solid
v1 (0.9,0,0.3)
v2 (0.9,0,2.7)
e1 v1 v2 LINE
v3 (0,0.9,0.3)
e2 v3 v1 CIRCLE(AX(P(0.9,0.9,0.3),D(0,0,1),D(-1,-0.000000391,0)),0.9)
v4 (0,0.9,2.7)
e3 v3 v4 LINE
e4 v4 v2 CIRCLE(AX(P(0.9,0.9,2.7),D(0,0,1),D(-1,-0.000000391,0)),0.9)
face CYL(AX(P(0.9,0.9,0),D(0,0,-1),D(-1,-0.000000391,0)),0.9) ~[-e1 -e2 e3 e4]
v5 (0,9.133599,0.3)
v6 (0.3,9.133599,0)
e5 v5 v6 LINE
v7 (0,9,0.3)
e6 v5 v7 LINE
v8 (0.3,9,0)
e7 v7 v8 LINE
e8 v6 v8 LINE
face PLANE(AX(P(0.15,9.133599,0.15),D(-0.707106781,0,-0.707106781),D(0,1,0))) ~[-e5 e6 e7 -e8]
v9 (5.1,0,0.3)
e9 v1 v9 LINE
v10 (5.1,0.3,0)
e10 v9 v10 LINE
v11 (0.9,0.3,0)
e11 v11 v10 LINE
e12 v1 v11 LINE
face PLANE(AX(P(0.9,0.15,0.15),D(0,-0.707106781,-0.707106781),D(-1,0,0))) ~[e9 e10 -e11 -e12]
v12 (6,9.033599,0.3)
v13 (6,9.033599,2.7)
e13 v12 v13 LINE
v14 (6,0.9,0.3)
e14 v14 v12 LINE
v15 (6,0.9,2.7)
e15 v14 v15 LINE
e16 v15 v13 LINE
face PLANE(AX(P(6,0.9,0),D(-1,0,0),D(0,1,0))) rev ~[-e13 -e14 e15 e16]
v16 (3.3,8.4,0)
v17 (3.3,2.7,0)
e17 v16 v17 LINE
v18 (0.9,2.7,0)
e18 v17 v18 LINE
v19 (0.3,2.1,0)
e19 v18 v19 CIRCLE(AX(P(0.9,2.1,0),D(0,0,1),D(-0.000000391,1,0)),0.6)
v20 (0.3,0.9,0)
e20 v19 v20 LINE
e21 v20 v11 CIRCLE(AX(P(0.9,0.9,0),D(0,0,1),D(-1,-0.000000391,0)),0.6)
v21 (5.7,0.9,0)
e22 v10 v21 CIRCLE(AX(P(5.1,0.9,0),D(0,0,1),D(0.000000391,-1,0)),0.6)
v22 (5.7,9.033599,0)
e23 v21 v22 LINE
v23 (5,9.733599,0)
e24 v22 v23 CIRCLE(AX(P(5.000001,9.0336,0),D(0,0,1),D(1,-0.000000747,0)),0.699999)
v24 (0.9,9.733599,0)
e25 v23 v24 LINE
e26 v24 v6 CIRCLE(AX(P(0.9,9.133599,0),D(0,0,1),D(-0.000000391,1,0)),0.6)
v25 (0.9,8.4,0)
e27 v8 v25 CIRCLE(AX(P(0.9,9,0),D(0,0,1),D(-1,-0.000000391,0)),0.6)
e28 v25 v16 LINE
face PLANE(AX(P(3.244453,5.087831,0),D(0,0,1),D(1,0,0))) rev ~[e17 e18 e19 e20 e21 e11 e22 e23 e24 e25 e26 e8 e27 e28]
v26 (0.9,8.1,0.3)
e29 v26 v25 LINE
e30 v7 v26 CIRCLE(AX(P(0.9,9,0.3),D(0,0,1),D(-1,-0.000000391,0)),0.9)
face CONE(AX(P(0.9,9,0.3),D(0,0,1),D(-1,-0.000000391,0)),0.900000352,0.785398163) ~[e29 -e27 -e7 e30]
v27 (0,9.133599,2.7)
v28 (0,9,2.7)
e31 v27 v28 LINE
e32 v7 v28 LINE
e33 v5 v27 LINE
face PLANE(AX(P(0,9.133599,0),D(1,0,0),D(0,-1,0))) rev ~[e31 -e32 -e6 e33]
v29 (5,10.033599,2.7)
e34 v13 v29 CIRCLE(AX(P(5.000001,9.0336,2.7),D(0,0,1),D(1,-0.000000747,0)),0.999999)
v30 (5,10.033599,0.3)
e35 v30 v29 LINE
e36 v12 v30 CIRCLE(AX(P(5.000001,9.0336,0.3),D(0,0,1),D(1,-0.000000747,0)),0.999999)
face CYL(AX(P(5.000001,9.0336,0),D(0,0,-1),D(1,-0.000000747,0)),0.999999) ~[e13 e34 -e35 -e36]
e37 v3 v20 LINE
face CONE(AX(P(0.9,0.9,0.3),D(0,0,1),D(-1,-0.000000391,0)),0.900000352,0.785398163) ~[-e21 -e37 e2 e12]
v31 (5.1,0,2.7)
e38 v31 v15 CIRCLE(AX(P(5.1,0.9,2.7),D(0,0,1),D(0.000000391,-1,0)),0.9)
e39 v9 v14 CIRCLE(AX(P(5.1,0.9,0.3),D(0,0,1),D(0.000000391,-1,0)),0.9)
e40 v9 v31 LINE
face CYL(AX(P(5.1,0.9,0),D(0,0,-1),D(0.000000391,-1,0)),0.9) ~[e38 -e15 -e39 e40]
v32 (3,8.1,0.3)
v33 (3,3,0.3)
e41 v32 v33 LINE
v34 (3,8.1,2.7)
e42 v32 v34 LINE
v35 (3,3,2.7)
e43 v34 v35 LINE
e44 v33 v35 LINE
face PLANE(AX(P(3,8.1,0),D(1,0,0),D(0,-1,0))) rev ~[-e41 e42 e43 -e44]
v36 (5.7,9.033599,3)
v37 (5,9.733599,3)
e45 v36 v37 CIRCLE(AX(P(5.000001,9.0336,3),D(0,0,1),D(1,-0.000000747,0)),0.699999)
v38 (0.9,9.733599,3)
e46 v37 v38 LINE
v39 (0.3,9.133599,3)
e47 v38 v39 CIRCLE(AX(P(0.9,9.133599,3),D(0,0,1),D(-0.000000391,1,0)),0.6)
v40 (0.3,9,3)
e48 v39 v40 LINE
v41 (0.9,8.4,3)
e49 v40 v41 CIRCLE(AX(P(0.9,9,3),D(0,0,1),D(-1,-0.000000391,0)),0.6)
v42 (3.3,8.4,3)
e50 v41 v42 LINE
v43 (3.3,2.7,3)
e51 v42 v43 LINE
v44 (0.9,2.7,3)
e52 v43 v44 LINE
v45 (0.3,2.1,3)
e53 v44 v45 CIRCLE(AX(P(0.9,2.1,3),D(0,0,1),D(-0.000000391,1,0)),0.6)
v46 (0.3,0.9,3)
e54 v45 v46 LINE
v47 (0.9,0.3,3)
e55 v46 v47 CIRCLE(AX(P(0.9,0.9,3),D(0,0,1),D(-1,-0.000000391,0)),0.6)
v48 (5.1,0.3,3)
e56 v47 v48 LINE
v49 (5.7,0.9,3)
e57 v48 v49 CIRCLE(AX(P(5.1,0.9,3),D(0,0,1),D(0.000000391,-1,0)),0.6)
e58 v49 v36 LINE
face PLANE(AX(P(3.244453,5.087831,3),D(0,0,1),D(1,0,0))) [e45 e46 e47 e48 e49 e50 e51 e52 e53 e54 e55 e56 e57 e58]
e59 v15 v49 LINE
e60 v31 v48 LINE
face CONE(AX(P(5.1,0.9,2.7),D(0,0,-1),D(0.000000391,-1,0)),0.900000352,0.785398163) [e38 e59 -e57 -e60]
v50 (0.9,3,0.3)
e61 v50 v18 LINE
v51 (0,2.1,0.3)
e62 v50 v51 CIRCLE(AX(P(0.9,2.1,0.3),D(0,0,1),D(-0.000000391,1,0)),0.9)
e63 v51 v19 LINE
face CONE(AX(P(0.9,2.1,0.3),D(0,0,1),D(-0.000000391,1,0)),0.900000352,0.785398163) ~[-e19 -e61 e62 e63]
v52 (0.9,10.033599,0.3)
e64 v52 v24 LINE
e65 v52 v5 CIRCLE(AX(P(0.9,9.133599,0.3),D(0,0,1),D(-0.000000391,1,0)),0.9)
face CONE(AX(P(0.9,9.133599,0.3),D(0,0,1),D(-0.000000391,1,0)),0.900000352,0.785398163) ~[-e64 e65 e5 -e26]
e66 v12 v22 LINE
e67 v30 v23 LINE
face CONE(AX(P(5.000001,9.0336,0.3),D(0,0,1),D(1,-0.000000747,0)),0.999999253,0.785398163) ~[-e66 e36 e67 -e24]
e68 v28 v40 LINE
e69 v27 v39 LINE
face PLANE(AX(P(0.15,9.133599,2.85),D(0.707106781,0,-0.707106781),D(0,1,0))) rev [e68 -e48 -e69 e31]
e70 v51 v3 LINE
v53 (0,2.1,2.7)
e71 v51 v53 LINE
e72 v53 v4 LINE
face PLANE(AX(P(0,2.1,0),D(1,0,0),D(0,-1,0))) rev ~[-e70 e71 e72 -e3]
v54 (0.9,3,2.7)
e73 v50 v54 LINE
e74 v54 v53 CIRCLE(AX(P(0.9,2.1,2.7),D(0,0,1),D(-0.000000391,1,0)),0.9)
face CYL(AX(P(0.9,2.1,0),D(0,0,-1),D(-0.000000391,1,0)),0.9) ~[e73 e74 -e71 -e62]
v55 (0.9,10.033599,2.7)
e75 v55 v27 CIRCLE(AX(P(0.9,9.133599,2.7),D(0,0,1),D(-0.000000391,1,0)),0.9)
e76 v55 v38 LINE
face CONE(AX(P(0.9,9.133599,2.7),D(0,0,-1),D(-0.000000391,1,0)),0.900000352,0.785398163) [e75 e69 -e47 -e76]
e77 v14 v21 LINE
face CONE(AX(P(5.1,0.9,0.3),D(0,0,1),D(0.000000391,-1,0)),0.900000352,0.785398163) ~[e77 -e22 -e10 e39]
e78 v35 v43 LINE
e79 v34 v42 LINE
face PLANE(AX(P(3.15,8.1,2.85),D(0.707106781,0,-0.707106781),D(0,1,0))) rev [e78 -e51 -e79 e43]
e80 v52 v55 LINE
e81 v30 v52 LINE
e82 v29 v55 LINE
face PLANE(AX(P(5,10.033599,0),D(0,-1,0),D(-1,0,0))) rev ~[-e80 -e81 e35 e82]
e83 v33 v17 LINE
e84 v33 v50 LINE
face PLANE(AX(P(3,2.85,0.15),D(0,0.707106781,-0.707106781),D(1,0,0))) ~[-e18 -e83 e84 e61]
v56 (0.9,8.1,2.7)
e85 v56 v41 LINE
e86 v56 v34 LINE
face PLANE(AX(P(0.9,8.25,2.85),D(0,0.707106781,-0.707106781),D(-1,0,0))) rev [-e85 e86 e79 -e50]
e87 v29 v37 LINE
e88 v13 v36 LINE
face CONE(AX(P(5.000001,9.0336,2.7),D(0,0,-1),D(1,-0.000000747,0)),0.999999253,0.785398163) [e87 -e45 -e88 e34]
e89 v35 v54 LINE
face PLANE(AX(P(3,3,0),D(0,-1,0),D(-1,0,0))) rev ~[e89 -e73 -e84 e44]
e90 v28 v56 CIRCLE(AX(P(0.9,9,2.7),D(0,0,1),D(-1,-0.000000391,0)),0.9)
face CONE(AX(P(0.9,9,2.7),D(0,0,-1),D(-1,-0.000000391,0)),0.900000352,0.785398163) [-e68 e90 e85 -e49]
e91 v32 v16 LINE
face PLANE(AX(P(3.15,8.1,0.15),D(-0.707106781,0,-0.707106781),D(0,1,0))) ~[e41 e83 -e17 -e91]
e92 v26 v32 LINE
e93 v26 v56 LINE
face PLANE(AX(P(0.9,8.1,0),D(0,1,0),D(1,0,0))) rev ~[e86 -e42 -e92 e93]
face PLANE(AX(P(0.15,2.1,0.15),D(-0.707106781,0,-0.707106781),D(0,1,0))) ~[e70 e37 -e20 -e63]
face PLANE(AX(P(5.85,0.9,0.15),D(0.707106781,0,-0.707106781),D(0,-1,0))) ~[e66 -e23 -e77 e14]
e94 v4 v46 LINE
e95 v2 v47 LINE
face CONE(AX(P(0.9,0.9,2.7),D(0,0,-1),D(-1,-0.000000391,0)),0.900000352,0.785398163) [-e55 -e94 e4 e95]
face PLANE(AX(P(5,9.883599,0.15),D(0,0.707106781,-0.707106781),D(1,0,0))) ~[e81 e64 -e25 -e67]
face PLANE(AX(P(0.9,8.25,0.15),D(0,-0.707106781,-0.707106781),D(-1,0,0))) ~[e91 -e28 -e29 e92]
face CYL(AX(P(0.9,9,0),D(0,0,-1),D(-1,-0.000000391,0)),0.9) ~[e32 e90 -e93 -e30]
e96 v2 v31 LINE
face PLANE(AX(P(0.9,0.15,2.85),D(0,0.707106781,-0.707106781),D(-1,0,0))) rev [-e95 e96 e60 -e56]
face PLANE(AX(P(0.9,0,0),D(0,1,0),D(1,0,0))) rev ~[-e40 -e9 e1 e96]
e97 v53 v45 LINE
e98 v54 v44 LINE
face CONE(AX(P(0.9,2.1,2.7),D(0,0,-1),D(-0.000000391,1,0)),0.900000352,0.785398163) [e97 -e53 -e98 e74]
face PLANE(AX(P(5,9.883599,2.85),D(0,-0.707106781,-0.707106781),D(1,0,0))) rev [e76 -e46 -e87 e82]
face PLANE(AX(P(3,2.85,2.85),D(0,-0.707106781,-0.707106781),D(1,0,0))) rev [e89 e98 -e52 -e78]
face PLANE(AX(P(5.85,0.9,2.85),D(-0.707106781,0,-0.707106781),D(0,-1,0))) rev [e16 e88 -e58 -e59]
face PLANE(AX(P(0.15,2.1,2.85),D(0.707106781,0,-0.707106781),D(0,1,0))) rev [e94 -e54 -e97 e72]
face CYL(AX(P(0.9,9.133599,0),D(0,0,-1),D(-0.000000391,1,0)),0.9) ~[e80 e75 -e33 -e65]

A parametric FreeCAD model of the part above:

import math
import FreeCAD as App
import Part
import Sketcher


def edges_at(feature, points):
    """Names of the edges that pass closest to the given points."""
    edges = feature.Shape.Edges
    near = lambda p: min(range(len(edges)), key=lambda i: edges[i].distToShape(Part.Vertex(*p))[0])
    return sorted({f"Edge{near(p) + 1}" for p in points})

doc = App.newDocument("Part")
body = doc.addObject("PartDesign::Body", "Body")

# Sketch on XY plane
sketch1 = body.newObject("Sketcher::SketchObject", "Sketch")
sketch1.AttachmentSupport = (doc.getObject("XY_Plane"), [""])
sketch1.MapMode = "FlatFace"
sketch1.addGeometry([
    Part.ArcOfCircle(Part.Circle(App.Vector(0.9, 9, 0), App.Vector(0, 0, 1), 0.9), math.radians(-180), math.radians(-90)),  # 0
    Part.LineSegment(App.Vector(0.9, 8.1, 0), App.Vector(3, 8.1, 0)),  # 1
    Part.LineSegment(App.Vector(3, 8.1, 0), App.Vector(3, 3, 0)),  # 2
    Part.LineSegment(App.Vector(3, 3, 0), App.Vector(0.9, 3, 0)),  # 3
    Part.ArcOfCircle(Part.Circle(App.Vector(0.9, 2.1, 0), App.Vector(0, 0, 1), 0.9), math.radians(90), math.radians(180)),  # 4
    Part.LineSegment(App.Vector(0, 2.1, 0), App.Vector(0, 0.9, 0)),  # 5
    Part.ArcOfCircle(Part.Circle(App.Vector(0.9, 0.9, 0), App.Vector(0, 0, 1), 0.9), math.radians(-180), math.radians(-90)),  # 6
    Part.LineSegment(App.Vector(0.9, 0, 0), App.Vector(5.1, 0, 0)),  # 7
    Part.ArcOfCircle(Part.Circle(App.Vector(5.1, 0.9, 0), App.Vector(0, 0, 1), 0.9), math.radians(-90), math.radians(0)),  # 8
    Part.LineSegment(App.Vector(6, 0.9, 0), App.Vector(6, 9.03, 0)),  # 9
    Part.ArcOfCircle(Part.Circle(App.Vector(5, 9.03, 0), App.Vector(0, 0, 1), 1), math.radians(0), math.radians(90)),  # 10
    Part.LineSegment(App.Vector(5, 10.03, 0), App.Vector(0.9, 10.03, 0)),  # 11
    Part.ArcOfCircle(Part.Circle(App.Vector(0.9, 9.13, 0), App.Vector(0, 0, 1), 0.9), math.radians(90), math.radians(180)),  # 12
    Part.LineSegment(App.Vector(0, 9.13, 0), App.Vector(0, 9, 0)),  # 13
], False)
sketch1.addConstraint([
    Sketcher.Constraint("Tangent", 0, 2, 1, 1),
    Sketcher.Constraint("Coincident", 1, 2, 2, 1),
    Sketcher.Constraint("Coincident", 2, 2, 3, 1),
    Sketcher.Constraint("Tangent", 3, 2, 4, 1),
    Sketcher.Constraint("Tangent", 4, 2, 5, 1),
    Sketcher.Constraint("Tangent", 5, 2, 6, 1),
    Sketcher.Constraint("Tangent", 6, 2, 7, 1),
    Sketcher.Constraint("Tangent", 7, 2, 8, 1),
    Sketcher.Constraint("Tangent", 8, 2, 9, 1),
    Sketcher.Constraint("Tangent", 9, 2, 10, 1),
    Sketcher.Constraint("Tangent", 10, 2, 11, 1),
    Sketcher.Constraint("Tangent", 11, 2, 12, 1),
    Sketcher.Constraint("Tangent", 12, 2, 13, 1),
    Sketcher.Constraint("Tangent", 13, 2, 0, 1),
    Sketcher.Constraint("Horizontal", 1),
    Sketcher.Constraint("Vertical", 2),
    Sketcher.Constraint("Horizontal", 3),
    Sketcher.Constraint("Vertical", 5),
    Sketcher.Constraint("Horizontal", 7),
    Sketcher.Constraint("Vertical", 9),
    Sketcher.Constraint("Horizontal", 11),
    Sketcher.Constraint("Vertical", 13),
    Sketcher.Constraint("Equal", 0, 4),
    Sketcher.Constraint("Equal", 4, 6),
    Sketcher.Constraint("Equal", 6, 8),
    Sketcher.Constraint("Equal", 8, 12),
    Sketcher.Constraint("PointOnObject", 4, 2, -2),
    Sketcher.Constraint("PointOnObject", 6, 2, -1),
    Sketcher.Constraint("PointOnObject", 12, 2, -2),
    Sketcher.Constraint("Radius", 10, 0.999999),
    Sketcher.Constraint("Radius", 0, 0.9),
    Sketcher.Constraint("DistanceX", 1, 1, 1, 2, 2.1),
    Sketcher.Constraint("DistanceX", 7, 1, 7, 2, 4.2),
    Sketcher.Constraint("DistanceY", 2, 2, 2, 1, 5.1),
    Sketcher.Constraint("DistanceY", 5, 2, 5, 1, 1.2),
    Sketcher.Constraint("DistanceY", 9, 1, 9, 2, 8.133599),
])
pad1 = body.newObject("PartDesign::Pad", "Pad")
pad1.Profile = sketch1
pad1.Length = 3
doc.recompute()

chamfer = body.newObject("PartDesign::Chamfer", "Chamfer")
chamfer.Base = (pad1, edges_at(pad1, [
    (0.264, 8.364, 3),
    (1.95, 8.1, 3),
    (3, 5.55, 3),
    (1.95, 3, 3),
    (0.264, 2.736, 3),
    (0, 1.5, 3),
    (0.264, 0.264, 3),
    (3, 0, 3),
    (5.736, 0.264, 3),
    (6, 4.967, 3),
    (5.707, 9.741, 3),
    (2.95, 10.034, 3),
    (0.264, 9.77, 3),
    (0, 9.067, 3),
    (0.264, 8.364, 0),
    (1.95, 8.1, 0),
    (3, 5.55, 0),
    (1.95, 3, 0),
    (0.264, 2.736, 0),
    (0, 1.5, 0),
    (0.264, 0.264, 0),
    (3, 0, 0),
    (5.736, 0.264, 0),
    (6, 4.967, 0),
    (5.707, 9.741, 0),
    (2.95, 10.034, 0),
    (0.264, 9.77, 0),
    (0, 9.067, 0),
]))
chamfer.Size = 0.3

doc.recompute()
